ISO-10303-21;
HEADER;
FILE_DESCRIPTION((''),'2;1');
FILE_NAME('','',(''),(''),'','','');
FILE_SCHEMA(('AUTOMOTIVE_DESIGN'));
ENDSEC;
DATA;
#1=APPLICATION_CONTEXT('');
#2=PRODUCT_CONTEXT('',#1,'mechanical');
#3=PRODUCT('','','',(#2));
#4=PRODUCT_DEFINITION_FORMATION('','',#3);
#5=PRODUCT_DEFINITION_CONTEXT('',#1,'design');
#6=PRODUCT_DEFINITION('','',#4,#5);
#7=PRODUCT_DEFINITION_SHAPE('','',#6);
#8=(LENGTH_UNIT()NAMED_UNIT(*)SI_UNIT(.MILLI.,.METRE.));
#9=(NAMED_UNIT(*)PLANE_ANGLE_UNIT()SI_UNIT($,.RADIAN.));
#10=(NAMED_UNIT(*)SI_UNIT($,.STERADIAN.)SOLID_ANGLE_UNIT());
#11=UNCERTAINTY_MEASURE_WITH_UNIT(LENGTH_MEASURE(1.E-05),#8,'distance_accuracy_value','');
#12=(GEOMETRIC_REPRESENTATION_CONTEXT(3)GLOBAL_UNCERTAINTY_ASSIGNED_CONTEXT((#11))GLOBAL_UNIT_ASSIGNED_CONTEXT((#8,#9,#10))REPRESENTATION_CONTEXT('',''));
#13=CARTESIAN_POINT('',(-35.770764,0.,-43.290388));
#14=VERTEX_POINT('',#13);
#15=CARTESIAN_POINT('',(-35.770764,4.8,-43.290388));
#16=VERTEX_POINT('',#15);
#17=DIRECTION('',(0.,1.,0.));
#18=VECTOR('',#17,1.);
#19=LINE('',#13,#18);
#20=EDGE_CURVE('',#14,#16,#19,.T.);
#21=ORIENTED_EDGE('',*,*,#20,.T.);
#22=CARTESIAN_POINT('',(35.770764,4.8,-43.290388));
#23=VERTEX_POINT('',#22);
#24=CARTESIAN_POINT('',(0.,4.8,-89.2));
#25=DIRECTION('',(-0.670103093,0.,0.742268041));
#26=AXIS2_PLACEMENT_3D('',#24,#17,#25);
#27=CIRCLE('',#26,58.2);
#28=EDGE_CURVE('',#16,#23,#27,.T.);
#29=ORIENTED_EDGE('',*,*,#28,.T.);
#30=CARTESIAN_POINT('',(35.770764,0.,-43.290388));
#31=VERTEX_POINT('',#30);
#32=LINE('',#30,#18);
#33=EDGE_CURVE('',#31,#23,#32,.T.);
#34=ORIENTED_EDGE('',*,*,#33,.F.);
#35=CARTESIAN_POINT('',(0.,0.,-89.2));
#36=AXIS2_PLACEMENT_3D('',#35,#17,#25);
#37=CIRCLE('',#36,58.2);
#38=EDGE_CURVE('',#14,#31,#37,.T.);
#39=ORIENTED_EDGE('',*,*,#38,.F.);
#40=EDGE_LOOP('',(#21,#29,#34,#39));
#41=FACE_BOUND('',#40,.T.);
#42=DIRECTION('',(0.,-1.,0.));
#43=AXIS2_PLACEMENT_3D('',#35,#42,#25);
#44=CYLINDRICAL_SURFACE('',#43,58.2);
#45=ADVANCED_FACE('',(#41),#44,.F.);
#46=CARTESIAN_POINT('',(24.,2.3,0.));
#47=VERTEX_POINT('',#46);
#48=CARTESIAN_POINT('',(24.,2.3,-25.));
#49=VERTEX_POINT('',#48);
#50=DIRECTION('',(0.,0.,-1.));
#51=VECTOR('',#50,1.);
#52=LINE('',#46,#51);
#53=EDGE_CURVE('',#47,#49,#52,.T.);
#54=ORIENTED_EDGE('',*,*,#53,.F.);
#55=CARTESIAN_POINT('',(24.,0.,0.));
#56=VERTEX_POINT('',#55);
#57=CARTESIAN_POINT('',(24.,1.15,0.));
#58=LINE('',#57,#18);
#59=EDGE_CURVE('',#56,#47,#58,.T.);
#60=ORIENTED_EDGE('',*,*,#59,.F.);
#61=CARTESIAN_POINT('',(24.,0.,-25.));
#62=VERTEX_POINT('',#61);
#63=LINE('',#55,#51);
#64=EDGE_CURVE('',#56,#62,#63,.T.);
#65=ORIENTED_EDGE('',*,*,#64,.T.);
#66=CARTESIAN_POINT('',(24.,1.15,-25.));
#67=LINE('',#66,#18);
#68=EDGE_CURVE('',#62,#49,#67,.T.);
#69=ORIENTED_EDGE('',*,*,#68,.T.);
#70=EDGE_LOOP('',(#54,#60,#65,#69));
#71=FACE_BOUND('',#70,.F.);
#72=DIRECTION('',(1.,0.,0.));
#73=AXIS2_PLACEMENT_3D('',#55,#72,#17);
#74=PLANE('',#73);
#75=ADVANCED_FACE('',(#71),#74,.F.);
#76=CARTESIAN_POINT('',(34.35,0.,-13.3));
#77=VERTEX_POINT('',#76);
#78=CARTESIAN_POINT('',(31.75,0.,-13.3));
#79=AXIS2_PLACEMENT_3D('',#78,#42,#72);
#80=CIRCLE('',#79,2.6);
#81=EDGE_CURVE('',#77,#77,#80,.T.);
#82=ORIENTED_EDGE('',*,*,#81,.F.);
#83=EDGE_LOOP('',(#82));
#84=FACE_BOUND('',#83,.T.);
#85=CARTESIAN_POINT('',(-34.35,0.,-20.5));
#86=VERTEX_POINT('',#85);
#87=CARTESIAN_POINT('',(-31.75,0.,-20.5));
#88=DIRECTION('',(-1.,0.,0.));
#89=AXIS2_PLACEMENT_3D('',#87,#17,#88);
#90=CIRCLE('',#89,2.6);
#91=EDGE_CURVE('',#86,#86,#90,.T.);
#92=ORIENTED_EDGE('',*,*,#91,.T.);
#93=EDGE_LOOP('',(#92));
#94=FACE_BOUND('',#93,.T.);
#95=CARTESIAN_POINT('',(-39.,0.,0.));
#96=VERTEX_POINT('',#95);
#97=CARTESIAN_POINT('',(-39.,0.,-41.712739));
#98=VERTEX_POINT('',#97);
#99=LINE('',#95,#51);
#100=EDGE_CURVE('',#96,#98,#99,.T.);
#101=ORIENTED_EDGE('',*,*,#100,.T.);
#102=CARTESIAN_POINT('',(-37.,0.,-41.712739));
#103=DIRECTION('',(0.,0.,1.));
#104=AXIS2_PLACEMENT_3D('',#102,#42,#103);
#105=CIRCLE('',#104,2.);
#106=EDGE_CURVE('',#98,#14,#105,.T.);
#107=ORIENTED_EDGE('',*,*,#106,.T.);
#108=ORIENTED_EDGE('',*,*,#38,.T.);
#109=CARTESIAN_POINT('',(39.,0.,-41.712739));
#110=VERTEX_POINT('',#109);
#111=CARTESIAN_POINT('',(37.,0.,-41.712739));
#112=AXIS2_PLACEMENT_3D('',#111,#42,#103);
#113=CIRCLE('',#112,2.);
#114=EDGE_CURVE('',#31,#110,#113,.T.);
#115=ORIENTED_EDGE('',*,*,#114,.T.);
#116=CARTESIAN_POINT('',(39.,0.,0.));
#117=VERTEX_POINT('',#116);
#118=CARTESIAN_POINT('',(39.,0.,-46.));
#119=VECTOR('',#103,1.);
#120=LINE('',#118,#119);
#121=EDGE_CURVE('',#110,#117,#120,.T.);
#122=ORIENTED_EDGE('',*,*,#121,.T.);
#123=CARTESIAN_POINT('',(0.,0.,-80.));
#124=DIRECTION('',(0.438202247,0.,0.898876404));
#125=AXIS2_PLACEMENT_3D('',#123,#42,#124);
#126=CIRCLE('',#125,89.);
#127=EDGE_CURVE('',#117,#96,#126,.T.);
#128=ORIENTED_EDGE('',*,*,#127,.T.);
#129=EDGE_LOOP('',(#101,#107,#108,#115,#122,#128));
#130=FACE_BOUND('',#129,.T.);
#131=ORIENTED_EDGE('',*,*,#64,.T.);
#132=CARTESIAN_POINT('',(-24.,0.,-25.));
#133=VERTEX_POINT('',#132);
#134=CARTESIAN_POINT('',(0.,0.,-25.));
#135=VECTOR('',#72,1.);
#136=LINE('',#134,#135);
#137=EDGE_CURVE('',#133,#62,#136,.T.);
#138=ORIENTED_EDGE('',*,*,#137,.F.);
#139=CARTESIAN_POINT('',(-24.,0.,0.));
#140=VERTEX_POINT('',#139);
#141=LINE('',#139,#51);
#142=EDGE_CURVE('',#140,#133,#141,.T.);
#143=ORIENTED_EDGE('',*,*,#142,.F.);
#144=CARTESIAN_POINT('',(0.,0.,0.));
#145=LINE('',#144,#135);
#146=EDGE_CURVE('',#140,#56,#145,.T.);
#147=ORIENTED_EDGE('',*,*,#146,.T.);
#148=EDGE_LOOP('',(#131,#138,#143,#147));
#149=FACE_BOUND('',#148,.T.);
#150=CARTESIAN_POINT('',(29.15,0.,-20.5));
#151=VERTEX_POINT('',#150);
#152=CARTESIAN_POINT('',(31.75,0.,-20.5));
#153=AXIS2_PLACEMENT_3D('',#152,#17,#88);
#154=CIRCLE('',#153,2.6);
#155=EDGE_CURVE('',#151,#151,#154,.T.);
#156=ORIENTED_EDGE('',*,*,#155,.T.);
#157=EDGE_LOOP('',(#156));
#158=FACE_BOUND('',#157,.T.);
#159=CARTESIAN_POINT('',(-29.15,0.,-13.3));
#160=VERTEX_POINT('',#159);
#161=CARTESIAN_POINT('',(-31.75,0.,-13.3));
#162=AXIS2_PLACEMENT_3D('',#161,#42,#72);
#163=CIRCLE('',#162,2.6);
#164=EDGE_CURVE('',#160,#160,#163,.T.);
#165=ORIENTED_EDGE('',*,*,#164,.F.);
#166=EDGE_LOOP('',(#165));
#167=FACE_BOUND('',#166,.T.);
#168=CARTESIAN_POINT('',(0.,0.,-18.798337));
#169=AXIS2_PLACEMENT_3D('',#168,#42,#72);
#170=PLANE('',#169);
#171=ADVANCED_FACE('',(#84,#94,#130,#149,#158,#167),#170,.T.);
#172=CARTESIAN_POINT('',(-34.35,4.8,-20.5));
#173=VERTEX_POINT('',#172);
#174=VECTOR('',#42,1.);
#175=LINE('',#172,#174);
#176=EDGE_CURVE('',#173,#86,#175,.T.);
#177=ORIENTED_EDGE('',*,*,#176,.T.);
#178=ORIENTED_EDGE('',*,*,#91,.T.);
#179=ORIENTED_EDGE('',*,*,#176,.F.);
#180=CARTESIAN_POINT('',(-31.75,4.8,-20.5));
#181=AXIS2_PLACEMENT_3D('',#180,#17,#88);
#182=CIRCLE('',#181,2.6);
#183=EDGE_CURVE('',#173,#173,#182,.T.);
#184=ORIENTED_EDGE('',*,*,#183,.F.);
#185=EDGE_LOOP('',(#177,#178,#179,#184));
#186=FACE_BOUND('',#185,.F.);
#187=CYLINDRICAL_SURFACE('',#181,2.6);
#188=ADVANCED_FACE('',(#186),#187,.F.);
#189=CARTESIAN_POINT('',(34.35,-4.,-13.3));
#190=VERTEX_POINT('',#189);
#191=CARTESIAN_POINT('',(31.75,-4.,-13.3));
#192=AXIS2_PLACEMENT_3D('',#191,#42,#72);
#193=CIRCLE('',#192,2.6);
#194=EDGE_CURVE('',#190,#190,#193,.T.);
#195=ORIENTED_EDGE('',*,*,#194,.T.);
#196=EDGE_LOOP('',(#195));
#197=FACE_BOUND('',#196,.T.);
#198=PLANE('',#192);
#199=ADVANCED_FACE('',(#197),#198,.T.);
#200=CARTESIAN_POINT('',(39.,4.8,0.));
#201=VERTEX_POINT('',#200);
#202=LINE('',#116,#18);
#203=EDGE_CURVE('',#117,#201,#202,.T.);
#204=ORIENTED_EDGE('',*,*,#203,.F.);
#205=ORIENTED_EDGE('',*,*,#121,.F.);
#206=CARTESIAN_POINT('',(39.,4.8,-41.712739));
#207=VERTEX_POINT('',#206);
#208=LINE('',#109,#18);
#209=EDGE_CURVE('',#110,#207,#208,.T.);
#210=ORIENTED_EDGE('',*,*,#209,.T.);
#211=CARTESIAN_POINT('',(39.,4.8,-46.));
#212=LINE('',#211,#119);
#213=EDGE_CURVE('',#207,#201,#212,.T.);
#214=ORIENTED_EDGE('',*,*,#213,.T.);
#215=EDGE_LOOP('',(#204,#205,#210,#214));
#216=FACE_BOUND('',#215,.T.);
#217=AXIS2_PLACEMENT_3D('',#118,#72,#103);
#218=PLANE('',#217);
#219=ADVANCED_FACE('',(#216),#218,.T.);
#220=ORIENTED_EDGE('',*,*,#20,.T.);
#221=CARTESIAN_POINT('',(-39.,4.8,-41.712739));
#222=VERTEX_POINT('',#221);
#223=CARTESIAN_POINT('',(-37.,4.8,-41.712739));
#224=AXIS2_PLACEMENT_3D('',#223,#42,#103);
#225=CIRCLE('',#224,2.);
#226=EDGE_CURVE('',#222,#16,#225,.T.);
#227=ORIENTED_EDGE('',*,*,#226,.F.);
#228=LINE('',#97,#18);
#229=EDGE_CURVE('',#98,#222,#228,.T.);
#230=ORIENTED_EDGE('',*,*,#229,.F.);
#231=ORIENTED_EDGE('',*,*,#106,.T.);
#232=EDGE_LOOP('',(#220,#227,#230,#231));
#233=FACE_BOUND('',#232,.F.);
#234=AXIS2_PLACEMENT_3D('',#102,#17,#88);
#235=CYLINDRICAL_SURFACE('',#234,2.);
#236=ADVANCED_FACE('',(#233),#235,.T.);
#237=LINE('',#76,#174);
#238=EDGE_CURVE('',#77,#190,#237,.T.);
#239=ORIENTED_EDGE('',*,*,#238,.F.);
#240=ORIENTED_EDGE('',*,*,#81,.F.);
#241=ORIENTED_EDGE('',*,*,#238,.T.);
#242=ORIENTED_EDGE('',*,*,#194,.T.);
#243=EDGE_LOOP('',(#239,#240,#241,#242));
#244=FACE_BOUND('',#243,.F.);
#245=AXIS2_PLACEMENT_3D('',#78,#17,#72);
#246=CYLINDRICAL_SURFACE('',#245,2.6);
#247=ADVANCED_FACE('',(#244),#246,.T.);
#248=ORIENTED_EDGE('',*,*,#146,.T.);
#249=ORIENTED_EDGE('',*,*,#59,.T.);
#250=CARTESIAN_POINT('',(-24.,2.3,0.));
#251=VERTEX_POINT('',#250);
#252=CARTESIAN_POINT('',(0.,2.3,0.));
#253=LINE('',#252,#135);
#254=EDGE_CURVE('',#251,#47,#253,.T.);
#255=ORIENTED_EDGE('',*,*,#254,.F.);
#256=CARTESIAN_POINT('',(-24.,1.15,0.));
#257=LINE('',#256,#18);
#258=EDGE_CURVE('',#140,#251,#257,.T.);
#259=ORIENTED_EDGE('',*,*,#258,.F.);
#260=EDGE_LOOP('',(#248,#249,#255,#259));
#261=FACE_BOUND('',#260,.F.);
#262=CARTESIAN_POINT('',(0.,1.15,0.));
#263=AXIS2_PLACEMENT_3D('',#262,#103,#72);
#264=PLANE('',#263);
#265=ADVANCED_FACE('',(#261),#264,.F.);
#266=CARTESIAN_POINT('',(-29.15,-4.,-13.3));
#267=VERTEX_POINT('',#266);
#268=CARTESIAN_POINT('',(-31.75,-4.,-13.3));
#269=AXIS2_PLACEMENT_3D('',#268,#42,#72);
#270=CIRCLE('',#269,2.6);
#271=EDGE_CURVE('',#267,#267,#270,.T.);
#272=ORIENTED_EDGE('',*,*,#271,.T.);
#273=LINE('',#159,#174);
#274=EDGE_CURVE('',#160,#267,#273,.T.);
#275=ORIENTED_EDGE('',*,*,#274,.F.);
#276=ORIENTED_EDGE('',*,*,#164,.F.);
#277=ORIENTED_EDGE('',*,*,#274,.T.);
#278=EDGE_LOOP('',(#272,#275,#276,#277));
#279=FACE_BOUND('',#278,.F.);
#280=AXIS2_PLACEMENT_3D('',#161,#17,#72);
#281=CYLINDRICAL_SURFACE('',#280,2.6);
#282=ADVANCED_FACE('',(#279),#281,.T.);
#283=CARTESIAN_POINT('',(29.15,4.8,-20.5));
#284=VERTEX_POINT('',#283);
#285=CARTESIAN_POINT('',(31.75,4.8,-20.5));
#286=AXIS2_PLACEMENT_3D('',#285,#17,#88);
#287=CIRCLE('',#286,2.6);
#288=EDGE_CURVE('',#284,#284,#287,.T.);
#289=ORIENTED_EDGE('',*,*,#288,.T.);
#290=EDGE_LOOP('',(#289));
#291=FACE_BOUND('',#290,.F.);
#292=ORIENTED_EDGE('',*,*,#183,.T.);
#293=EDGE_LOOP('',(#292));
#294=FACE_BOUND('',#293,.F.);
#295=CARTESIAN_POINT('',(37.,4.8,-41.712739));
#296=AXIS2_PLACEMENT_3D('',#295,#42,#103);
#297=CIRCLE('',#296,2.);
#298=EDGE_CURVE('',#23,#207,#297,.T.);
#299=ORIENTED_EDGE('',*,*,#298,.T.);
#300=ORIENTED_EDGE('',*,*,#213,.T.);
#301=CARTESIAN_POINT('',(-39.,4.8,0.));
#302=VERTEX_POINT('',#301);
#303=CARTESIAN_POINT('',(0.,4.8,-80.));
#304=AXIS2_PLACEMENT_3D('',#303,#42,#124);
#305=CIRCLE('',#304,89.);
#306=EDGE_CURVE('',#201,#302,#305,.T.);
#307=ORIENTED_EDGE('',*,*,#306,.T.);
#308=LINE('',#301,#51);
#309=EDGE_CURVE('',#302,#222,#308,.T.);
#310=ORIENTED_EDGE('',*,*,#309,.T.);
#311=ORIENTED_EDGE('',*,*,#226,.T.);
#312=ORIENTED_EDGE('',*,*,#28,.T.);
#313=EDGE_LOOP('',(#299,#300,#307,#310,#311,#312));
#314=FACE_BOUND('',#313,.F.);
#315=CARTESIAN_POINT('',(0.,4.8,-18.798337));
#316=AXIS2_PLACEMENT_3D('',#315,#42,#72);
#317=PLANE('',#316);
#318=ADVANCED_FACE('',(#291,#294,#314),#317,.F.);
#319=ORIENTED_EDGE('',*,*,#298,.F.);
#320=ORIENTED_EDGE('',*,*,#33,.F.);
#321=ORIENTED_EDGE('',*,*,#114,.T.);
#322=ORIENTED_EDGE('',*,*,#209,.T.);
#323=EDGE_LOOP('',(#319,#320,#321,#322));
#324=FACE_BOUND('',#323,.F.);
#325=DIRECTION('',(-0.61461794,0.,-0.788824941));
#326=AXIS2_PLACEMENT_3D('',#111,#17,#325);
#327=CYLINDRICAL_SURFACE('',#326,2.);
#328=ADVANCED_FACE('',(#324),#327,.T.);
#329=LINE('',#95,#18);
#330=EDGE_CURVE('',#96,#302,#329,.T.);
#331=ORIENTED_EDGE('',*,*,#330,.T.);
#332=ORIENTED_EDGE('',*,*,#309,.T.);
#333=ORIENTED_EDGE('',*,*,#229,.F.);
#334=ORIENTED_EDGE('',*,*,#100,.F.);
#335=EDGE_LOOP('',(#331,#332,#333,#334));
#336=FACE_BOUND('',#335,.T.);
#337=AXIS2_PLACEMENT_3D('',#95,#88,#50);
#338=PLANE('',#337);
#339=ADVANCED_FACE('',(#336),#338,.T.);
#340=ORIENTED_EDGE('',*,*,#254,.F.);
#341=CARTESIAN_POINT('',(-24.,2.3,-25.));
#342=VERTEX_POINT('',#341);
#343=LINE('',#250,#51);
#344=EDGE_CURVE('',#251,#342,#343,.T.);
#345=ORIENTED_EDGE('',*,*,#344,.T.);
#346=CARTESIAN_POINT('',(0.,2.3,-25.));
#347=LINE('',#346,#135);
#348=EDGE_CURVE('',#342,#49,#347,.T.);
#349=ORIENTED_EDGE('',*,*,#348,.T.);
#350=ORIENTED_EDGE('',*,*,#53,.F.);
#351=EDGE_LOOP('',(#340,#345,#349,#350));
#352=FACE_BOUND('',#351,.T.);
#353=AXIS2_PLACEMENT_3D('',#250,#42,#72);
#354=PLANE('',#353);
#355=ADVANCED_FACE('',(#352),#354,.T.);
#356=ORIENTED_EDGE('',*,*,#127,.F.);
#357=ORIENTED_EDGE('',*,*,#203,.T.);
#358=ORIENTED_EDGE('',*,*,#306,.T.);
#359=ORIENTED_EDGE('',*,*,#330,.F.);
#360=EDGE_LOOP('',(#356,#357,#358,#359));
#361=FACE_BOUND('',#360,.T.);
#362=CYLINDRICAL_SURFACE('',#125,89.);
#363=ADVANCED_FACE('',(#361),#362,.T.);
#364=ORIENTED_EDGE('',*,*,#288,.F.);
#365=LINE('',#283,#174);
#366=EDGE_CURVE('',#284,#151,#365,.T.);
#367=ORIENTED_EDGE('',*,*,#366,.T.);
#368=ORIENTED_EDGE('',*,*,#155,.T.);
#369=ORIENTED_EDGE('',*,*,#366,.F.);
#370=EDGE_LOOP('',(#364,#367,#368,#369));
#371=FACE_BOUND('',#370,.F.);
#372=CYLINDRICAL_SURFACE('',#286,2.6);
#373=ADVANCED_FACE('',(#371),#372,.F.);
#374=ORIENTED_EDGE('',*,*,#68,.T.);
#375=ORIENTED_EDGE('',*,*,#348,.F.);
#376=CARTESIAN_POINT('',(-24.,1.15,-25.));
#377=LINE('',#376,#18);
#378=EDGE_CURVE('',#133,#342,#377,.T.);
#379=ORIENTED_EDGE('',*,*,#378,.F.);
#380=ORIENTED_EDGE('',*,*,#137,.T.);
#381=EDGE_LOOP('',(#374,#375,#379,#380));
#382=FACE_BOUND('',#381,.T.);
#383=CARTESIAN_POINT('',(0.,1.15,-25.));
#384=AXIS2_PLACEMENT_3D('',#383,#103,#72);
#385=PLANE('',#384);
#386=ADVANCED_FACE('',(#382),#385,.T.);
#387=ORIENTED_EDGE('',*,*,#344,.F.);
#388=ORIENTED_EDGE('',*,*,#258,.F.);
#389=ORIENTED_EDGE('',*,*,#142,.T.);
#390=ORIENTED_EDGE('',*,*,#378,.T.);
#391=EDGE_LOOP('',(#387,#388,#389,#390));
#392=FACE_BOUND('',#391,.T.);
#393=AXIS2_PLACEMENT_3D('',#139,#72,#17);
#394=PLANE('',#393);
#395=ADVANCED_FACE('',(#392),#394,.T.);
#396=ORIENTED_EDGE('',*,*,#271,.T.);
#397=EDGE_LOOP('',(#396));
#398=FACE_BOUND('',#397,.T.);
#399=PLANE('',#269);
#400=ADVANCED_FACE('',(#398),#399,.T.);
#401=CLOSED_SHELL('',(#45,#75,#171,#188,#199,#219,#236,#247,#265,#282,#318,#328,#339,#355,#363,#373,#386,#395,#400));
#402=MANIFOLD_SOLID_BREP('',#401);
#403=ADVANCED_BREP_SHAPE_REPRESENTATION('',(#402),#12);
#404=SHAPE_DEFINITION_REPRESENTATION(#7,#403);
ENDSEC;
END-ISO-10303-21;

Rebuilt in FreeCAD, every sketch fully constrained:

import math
import FreeCAD as App
import Part
import Sketcher

V = App.Vector
Q = App.Units.Quantity


def edges_at(feature, points):
    """Names of the edges that pass closest to the given points."""
    edges = feature.Shape.Edges
    near = lambda p: min(range(len(edges)), key=lambda i: edges[i].distToShape(Part.Vertex(*p))[0])
    return sorted({f"Edge{near(p) + 1}" for p in points})

doc = App.newDocument("Part")
body = doc.addObject("PartDesign::Body", "Body")

sketch1 = doc.addObject("Sketcher::SketchObject", "Sketch")
body.addObject(sketch1)
sketch1.AttachmentSupport = (doc.XZ_Plane, [""])
sketch1.MapMode = "FlatFace"
sketch1.addGeometry(Part.LineSegment(V(-39, 0, 0), V(-39, -46, 0)), False)
sketch1.addGeometry(Part.ArcOfCircle(Part.Circle(V(0, -89, 0), V(0, 0, 1), 58), math.radians(48), math.radians(132)), False)
sketch1.addGeometry(Part.LineSegment(V(39, -46, 0), V(39, 0, 0)), False)
sketch1.addGeometry(Part.ArcOfCircle(Part.Circle(V(0, -80, 0), V(0, 0, 1), 89), math.radians(64), math.radians(116)), False)
sketch1.addConstraint(Sketcher.Constraint("Coincident", 0, 2, 1, 2))
sketch1.addConstraint(Sketcher.Constraint("Coincident", 1, 1, 2, 1))
sketch1.addConstraint(Sketcher.Constraint("Coincident", 2, 2, 3, 1))
sketch1.addConstraint(Sketcher.Constraint("Coincident", 3, 2, 0, 1))
sketch1.addConstraint(Sketcher.Constraint("Vertical", 0))
sketch1.addConstraint(Sketcher.Constraint("Vertical", 2))
sketch1.addConstraint(Sketcher.Constraint("Symmetric", 2, 2, 3, 2, -1, 1))
sketch1.addConstraint(Sketcher.Constraint("PointOnObject", 1, 3, -2))
sketch1.addConstraint(Sketcher.Constraint("PointOnObject", 3, 3, -2))
sketch1.addConstraint(Sketcher.Constraint("Radius", 3, Q("89 mm")))
sketch1.addConstraint(Sketcher.Constraint("Radius", 1, Q("58.2 mm")))
sketch1.addConstraint(Sketcher.Constraint("DistanceY", 0, 2, 0, 1, Q("46 mm")))
sketch1.addConstraint(Sketcher.Constraint("DistanceY", 3, 3, -1, 1, Q("80 mm")))
pad1 = doc.addObject("PartDesign::Pad", "Pad")
body.addObject(pad1)
pad1.Profile = sketch1
pad1.Length = 4.8
pad1.Reversed = True

sketch2 = doc.addObject("Sketcher::SketchObject", "Sketch001")
body.addObject(sketch2)
sketch2.AttachmentSupport = (doc.XZ_Plane, [""])
sketch2.MapMode = "FlatFace"
sketch2.addGeometry(Part.Circle(V(-31.8, -13.3, 0), V(0, 0, 1), 2.6), False)
sketch2.addGeometry(Part.Circle(V(31.8, -13.3, 0), V(0, 0, 1), 2.6), False)
sketch2.addConstraint(Sketcher.Constraint("Equal", 0, 1))
sketch2.addConstraint(Sketcher.Constraint("Symmetric", 0, 3, 1, 3, -2))
sketch2.addConstraint(Sketcher.Constraint("Diameter", 0, Q("5.2 mm")))
sketch2.addConstraint(Sketcher.Constraint("DistanceY", 0, 3, -1, 1, Q("13.3 mm")))
sketch2.addConstraint(Sketcher.Constraint("DistanceX", 0, 3, 1, 3, Q("63.5 mm")))
pad2 = doc.addObject("PartDesign::Pad", "Pad001")
body.addObject(pad2)
pad2.Profile = sketch2
pad2.Length = 4

sketch3 = doc.addObject("Sketcher::SketchObject", "Sketch002")
body.addObject(sketch3)
sketch3.AttachmentSupport = (doc.XZ_Plane, [""])
sketch3.MapMode = "FlatFace"
sketch3.AttachmentOffset = App.Placement(V(0, 0, -4.8), App.Rotation())
sketch3.addGeometry(Part.Circle(V(31.8, -20.5, 0), V(0, 0, 1), 2.6), False)
sketch3.addGeometry(Part.Circle(V(-31.8, -20.5, 0), V(0, 0, 1), 2.6), False)
sketch3.addConstraint(Sketcher.Constraint("Equal", 0, 1))
sketch3.addConstraint(Sketcher.Constraint("Symmetric", 0, 3, 1, 3, -2))
sketch3.addConstraint(Sketcher.Constraint("Diameter", 0, Q("5.2 mm")))
sketch3.addConstraint(Sketcher.Constraint("DistanceY", 0, 3, -1, 1, Q("20.5 mm")))
sketch3.addConstraint(Sketcher.Constraint("DistanceX", 1, 3, 0, 3, Q("63.5 mm")))
pocket1 = doc.addObject("PartDesign::Pocket", "Pocket")
body.addObject(pocket1)
pocket1.Profile = sketch3
pocket1.Type = "ThroughAll"
pocket1.Reversed = True
doc.recompute()

fillet = doc.addObject("PartDesign::Fillet", "Fillet")
body.addObject(fillet)
fillet.Base = (pocket1, edges_at(pocket1, [(-39, 2.4, -46), (39, 2.4, -46)]))
fillet.Radius = 2

sketch4 = doc.addObject("Sketcher::SketchObject", "Sketch003")
body.addObject(sketch4)
sketch4.AttachmentSupport = (doc.XY_Plane, [""])
sketch4.MapMode = "FlatFace"
sketch4.addGeometry(Part.LineSegment(V(-24, 2.3, 0), V(-24, 0, 0)), False)
sketch4.addGeometry(Part.LineSegment(V(-24, 0, 0), V(24, 0, 0)), False)
sketch4.addGeometry(Part.LineSegment(V(24, 0, 0), V(24, 2.3, 0)), False)
sketch4.addGeometry(Part.LineSegment(V(24, 2.3, 0), V(-24, 2.3, 0)), False)
sketch4.addConstraint(Sketcher.Constraint("Coincident", 0, 2, 1, 1))
sketch4.addConstraint(Sketcher.Constraint("Coincident", 1, 2, 2, 1))
sketch4.addConstraint(Sketcher.Constraint("Coincident", 2, 2, 3, 1))
sketch4.addConstraint(Sketcher.Constraint("Coincident", 3, 2, 0, 1))
sketch4.addConstraint(Sketcher.Constraint("Vertical", 0))
sketch4.addConstraint(Sketcher.Constraint("Horizontal", 1))
sketch4.addConstraint(Sketcher.Constraint("Vertical", 2))
sketch4.addConstraint(Sketcher.Constraint("Horizontal", 3))
sketch4.addConstraint(Sketcher.Constraint("Symmetric", 0, 2, 1, 2, -1, 1))
sketch4.addConstraint(Sketcher.Constraint("DistanceX", 1, 1, 1, 2, Q("48 mm")))
sketch4.addConstraint(Sketcher.Constraint("DistanceY", 0, 2, 0, 1, Q("2.3 mm")))
pocket2 = doc.addObject("PartDesign::Pocket", "Pocket001")
body.addObject(pocket2)
pocket2.Profile = sketch4
pocket2.Length = 25

doc.recompute()
